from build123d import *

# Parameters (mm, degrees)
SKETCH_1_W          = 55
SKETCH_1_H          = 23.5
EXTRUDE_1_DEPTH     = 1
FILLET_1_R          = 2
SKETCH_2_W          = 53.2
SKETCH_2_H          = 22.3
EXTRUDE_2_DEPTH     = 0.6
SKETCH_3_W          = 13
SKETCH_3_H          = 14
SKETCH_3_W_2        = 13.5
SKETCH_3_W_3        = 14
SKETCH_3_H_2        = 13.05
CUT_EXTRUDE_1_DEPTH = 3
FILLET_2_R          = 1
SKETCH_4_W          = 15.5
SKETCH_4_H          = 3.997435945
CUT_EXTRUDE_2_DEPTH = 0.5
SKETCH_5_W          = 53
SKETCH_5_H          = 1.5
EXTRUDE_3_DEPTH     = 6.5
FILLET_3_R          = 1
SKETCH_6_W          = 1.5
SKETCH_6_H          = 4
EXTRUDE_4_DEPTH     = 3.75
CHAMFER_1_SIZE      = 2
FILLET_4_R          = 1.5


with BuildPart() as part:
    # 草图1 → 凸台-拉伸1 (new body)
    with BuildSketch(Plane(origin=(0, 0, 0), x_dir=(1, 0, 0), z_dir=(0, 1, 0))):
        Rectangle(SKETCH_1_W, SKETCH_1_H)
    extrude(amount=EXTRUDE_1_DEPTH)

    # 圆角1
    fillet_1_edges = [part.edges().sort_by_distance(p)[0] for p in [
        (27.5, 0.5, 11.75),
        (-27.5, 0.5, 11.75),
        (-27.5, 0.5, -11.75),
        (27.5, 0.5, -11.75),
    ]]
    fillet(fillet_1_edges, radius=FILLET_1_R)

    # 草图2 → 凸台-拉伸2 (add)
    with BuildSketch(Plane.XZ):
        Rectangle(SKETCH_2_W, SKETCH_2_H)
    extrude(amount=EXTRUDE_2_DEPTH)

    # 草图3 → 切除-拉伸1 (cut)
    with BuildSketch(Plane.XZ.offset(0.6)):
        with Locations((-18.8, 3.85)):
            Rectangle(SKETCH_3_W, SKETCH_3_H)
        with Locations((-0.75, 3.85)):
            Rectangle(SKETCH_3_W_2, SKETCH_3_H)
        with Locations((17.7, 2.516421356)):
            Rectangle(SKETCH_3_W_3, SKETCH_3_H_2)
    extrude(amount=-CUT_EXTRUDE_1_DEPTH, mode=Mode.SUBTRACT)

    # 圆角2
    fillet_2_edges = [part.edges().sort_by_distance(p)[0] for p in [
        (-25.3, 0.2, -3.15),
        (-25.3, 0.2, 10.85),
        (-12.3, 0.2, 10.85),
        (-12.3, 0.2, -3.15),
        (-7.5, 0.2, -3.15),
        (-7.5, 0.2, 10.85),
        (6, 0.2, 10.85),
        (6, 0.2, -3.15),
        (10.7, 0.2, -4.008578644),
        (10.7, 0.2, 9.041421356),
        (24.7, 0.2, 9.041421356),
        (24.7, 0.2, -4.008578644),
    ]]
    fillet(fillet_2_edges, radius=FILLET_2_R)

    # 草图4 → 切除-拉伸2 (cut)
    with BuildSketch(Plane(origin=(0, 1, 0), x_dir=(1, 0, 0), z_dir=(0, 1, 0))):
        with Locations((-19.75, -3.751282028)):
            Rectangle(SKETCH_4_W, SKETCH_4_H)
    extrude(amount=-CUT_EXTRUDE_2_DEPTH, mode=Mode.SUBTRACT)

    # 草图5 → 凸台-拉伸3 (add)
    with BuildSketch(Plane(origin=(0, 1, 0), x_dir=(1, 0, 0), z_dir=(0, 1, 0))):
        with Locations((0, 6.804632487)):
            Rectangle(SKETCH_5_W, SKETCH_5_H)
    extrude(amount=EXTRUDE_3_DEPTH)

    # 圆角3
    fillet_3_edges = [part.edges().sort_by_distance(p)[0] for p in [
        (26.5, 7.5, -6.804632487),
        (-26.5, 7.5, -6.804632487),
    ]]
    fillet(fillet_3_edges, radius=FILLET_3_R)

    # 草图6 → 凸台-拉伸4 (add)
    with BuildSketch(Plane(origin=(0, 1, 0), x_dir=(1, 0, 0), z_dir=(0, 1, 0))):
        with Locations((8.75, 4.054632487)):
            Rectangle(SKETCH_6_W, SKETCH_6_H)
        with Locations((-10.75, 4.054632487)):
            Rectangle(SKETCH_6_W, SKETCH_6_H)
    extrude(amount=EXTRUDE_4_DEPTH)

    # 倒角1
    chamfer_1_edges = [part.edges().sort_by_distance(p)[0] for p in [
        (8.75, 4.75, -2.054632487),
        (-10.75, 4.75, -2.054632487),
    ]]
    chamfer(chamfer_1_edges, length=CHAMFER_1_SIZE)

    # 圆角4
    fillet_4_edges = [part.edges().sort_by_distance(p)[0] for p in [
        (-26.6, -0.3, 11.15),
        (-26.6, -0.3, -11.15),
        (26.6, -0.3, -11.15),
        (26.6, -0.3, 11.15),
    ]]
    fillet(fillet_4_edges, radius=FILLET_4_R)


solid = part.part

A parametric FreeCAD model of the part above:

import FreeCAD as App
import Part
import Sketcher

V = App.Vector


def edges_at(feature, points):
    """Names of the edges that pass closest to the given points."""
    edges = feature.Shape.Edges
    near = lambda p: min(range(len(edges)), key=lambda i: edges[i].distToShape(Part.Vertex(*p))[0])
    return sorted({f"Edge{near(p) + 1}" for p in points})

doc = App.newDocument("Part")
body = doc.addObject("PartDesign::Body", "Body")

# Sketch on XZ plane
sketch1 = doc.addObject("Sketcher::SketchObject", "Sketch")
body.addObject(sketch1)
sketch1.AttachmentSupport = (doc.XZ_Plane, [""])
sketch1.MapMode = "FlatFace"
sketch1.addGeometry([
    Part.LineSegment(V(-28, -12, 0), V(-28, 12, 0)),
    Part.LineSegment(V(-28, 12, 0), V(28, 12, 0)),
    Part.LineSegment(V(28, 12, 0), V(28, -12, 0)),
    Part.LineSegment(V(28, -12, 0), V(-28, -12, 0)),
], False)
sketch1.addConstraint([
    Sketcher.Constraint("Coincident", 0, 2, 1, 1),
    Sketcher.Constraint("Coincident", 1, 2, 2, 1),
    Sketcher.Constraint("Coincident", 2, 2, 3, 1),
    Sketcher.Constraint("Coincident", 3, 2, 0, 1),
    Sketcher.Constraint("Vertical", 0),
    Sketcher.Constraint("Horizontal", 1),
    Sketcher.Constraint("Vertical", 2),
    Sketcher.Constraint("Horizontal", 3),
    Sketcher.Constraint("Symmetric", 0, 2, 2, 2, -1, 1),
    Sketcher.Constraint("DistanceX", 1, 1, 1, 2, 55.0),
    Sketcher.Constraint("DistanceY", 0, 1, 0, 2, 23.5),
])
pad1 = doc.addObject("PartDesign::Pad", "Pad")
body.addObject(pad1)
pad1.Profile = sketch1
pad1.Length = 1
pad1.Reversed = True
doc.recompute()

fillet = doc.addObject("PartDesign::Fillet", "Fillet")
body.addObject(fillet)
fillet.Base = (pad1, edges_at(pad1, [
    (27.5, 0.5, 11.75),
    (-27.5, 0.5, 11.75),
    (-27.5, 0.5, -11.75),
    (27.5, 0.5, -11.75),
]))
fillet.Radius = 2

# Sketch on XZ plane
sketch2 = doc.addObject("Sketcher::SketchObject", "Sketch001")
body.addObject(sketch2)
sketch2.AttachmentSupport = (doc.XZ_Plane, [""])
sketch2.MapMode = "FlatFace"
sketch2.addGeometry([
    Part.LineSegment(V(-27, 11, 0), V(-27, -11, 0)),
    Part.LineSegment(V(-27, -11, 0), V(27, -11, 0)),
    Part.LineSegment(V(27, -11, 0), V(27, 11, 0)),
    Part.LineSegment(V(27, 11, 0), V(-27, 11, 0)),
], False)
sketch2.addConstraint([
    Sketcher.Constraint("Coincident", 0, 2, 1, 1),
    Sketcher.Constraint("Coincident", 1, 2, 2, 1),
    Sketcher.Constraint("Coincident", 2, 2, 3, 1),
    Sketcher.Constraint("Coincident", 3, 2, 0, 1),
    Sketcher.Constraint("Vertical", 0),
    Sketcher.Constraint("Horizontal", 1),
    Sketcher.Constraint("Vertical", 2),
    Sketcher.Constraint("Horizontal", 3),
    Sketcher.Constraint("Symmetric", 0, 2, 2, 2, -1, 1),
    Sketcher.Constraint("DistanceX", 1, 1, 1, 2, 53.2),
    Sketcher.Constraint("DistanceY", 0, 2, 0, 1, 22.3),
])
pad2 = doc.addObject("PartDesign::Pad", "Pad001")
body.addObject(pad2)
pad2.Profile = sketch2
pad2.Length = 0.6

# Sketch on XZ plane
sketch3 = doc.addObject("Sketcher::SketchObject", "Sketch002")
body.addObject(sketch3)
sketch3.AttachmentSupport = (doc.XZ_Plane, [""])
sketch3.MapMode = "FlatFace"
sketch3.AttachmentOffset = App.Placement(V(0, 0, 0.6), App.Rotation())
sketch3.addGeometry([
    Part.LineSegment(V(-25, 11, 0), V(-25, -3, 0)),  # 0
    Part.LineSegment(V(-25, -3, 0), V(-12, -3, 0)),  # 1
    Part.LineSegment(V(-12, -3, 0), V(-12, 11, 0)),  # 2
    Part.LineSegment(V(-12, 11, 0), V(-25, 11, 0)),  # 3
    Part.LineSegment(V(-8, 11, 0), V(-8, -3, 0)),  # 4
    Part.LineSegment(V(-8, -3, 0), V(6, -3, 0)),  # 5
    Part.LineSegment(V(6, -3, 0), V(6, 11, 0)),  # 6
    Part.LineSegment(V(6, 11, 0), V(-8, 11, 0)),  # 7
    Part.LineSegment(V(11, 9, 0), V(11, -4, 0)),  # 8
    Part.LineSegment(V(11, -4, 0), V(25, -4, 0)),  # 9
    Part.LineSegment(V(25, -4, 0), V(25, 9, 0)),  # 10
    Part.LineSegment(V(25, 9, 0), V(11, 9, 0)),  # 11
], False)
sketch3.addConstraint([
    Sketcher.Constraint("Coincident", 0, 2, 1, 1),
    Sketcher.Constraint("Coincident", 1, 2, 2, 1),
    Sketcher.Constraint("Coincident", 2, 2, 3, 1),
    Sketcher.Constraint("Coincident", 3, 2, 0, 1),
    Sketcher.Constraint("Coincident", 4, 2, 5, 1),
    Sketcher.Constraint("Coincident", 5, 2, 6, 1),
    Sketcher.Constraint("Coincident", 6, 2, 7, 1),
    Sketcher.Constraint("Coincident", 7, 2, 4, 1),
    Sketcher.Constraint("Coincident", 8, 2, 9, 1),
    Sketcher.Constraint("Coincident", 9, 2, 10, 1),
    Sketcher.Constraint("Coincident", 10, 2, 11, 1),
    Sketcher.Constraint("Coincident", 11, 2, 8, 1),
    Sketcher.Constraint("Vertical", 0),
    Sketcher.Constraint("Horizontal", 1),
    Sketcher.Constraint("Vertical", 2),
    Sketcher.Constraint("Horizontal", 3),
    Sketcher.Constraint("Vertical", 4),
    Sketcher.Constraint("Horizontal", 5),
    Sketcher.Constraint("Vertical", 6),
    Sketcher.Constraint("Horizontal", 7),
    Sketcher.Constraint("Vertical", 8),
    Sketcher.Constraint("Horizontal", 9),
    Sketcher.Constraint("Vertical", 10),
    Sketcher.Constraint("Horizontal", 11),
    Sketcher.Constraint("Horizontal", 1, 2, 4, 2),
    Sketcher.Constraint("Horizontal", 3, 2, 6, 2),
    Sketcher.Constraint("Equal", 11, 0),
    Sketcher.Constraint("DistanceX", 1, 1, 1, 2, 13.0),
    Sketcher.Constraint("DistanceX", 9, 1, 9, 2, 14.0),
    Sketcher.Constraint("DistanceX", 5, 1, 5, 2, 13.5),
    Sketcher.Constraint("DistanceX", -1, 1, 5, 2, 6.0),
    Sketcher.Constraint("DistanceX", 1, 2, 8, 2, 23.0),
    Sketcher.Constraint("DistanceY", 8, 2, 8, 1, 13.05),
    Sketcher.Constraint("DistanceX", 0, 2, -1, 1, 25.3),
    Sketcher.Constraint("DistanceY", 0, 2, -1, 1, 3.15),
    Sketcher.Constraint("DistanceY", 8, 2, -1, 1, 4.008579),
])
pocket1 = doc.addObject("PartDesign::Pocket", "Pocket")
body.addObject(pocket1)
pocket1.Profile = sketch3
pocket1.Length = 3
doc.recompute()

fillet2 = doc.addObject("PartDesign::Fillet", "Fillet001")
body.addObject(fillet2)
fillet2.Base = (pocket1, edges_at(pocket1, [
    (-25.3, 0.2, -3.15),
    (-25.3, 0.2, 10.85),
    (-12.3, 0.2, 10.85),
    (-12.3, 0.2, -3.15),
    (-7.5, 0.2, -3.15),
    (-7.5, 0.2, 10.85),
    (6, 0.2, 10.85),
    (6, 0.2, -3.15),
    (10.7, 0.2, -4.009),
    (10.7, 0.2, 9.041),
    (24.7, 0.2, 9.041),
    (24.7, 0.2, -4.009),
]))
fillet2.Radius = 1

# Sketch on XZ plane
sketch4 = doc.addObject("Sketcher::SketchObject", "Sketch003")
body.addObject(sketch4)
sketch4.AttachmentSupport = (doc.XZ_Plane, [""])
sketch4.MapMode = "FlatFace"
sketch4.AttachmentOffset = App.Placement(V(0, 0, -1), App.Rotation())
sketch4.addGeometry([
    Part.LineSegment(V(-27.5, 1.8, 0), V(-27.5, 5.8, 0)),
    Part.LineSegment(V(-27.5, 5.8, 0), V(-12, 5.8, 0)),
    Part.LineSegment(V(-12, 5.8, 0), V(-12, 1.8, 0)),
    Part.LineSegment(V(-12, 1.8, 0), V(-27.5, 1.8, 0)),
], False)
sketch4.addConstraint([
    Sketcher.Constraint("Coincident", 0, 2, 1, 1),
    Sketcher.Constraint("Coincident", 1, 2, 2, 1),
    Sketcher.Constraint("Coincident", 2, 2, 3, 1),
    Sketcher.Constraint("Coincident", 3, 2, 0, 1),
    Sketcher.Constraint("Vertical", 0),
    Sketcher.Constraint("Horizontal", 1),
    Sketcher.Constraint("Vertical", 2),
    Sketcher.Constraint("Horizontal", 3),
    Sketcher.Constraint("DistanceX", 1, 1, 1, 2, 15.5),
    Sketcher.Constraint("DistanceX", 1, 2, -1, 1, 12.0),
    Sketcher.Constraint("DistanceY", -1, 1, 0, 2, 5.75),
    Sketcher.Constraint("DistanceY", 0, 1, 0, 2, 3.997436),
])
pocket2 = doc.addObject("PartDesign::Pocket", "Pocket001")
body.addObject(pocket2)
pocket2.Profile = sketch4
pocket2.Length = 0.5
pocket2.Reversed = True

# Sketch on XZ plane
sketch5 = doc.addObject("Sketcher::SketchObject", "Sketch004")
body.addObject(sketch5)
sketch5.AttachmentSupport = (doc.XZ_Plane, [""])
sketch5.MapMode = "FlatFace"
sketch5.AttachmentOffset = App.Placement(V(0, 0, -1), App.Rotation())
sketch5.addGeometry([
    Part.LineSegment(V(-26.5, -7.6, 0), V(-26.5, -6.1, 0)),
    Part.LineSegment(V(-26.5, -6.1, 0), V(26.5, -6.1, 0)),
    Part.LineSegment(V(26.5, -6.1, 0), V(26.5, -7.6, 0)),
    Part.LineSegment(V(26.5, -7.6, 0), V(-26.5, -7.6, 0)),
], False)
sketch5.addConstraint([
    Sketcher.Constraint("Coincident", 0, 2, 1, 1),
    Sketcher.Constraint("Coincident", 1, 2, 2, 1),
    Sketcher.Constraint("Coincident", 2, 2, 3, 1),
    Sketcher.Constraint("Coincident", 3, 2, 0, 1),
    Sketcher.Constraint("Vertical", 0),
    Sketcher.Constraint("Horizontal", 1),
    Sketcher.Constraint("Vertical", 2),
    Sketcher.Constraint("Horizontal", 3),
    Sketcher.Constraint("DistanceX", 1, 1, 1, 2, 53.0),
    Sketcher.Constraint("DistanceY", 0, 1, 0, 2, 1.5),
    Sketcher.Constraint("DistanceX", 0, 2, -1, 1, 26.5),
    Sketcher.Constraint("DistanceY", 0, 2, -1, 1, 6.054632),
])
pad3 = doc.addObject("PartDesign::Pad", "Pad002")
body.addObject(pad3)
pad3.Profile = sketch5
pad3.Length = 6.5
pad3.Reversed = True
doc.recompute()

fillet3 = doc.addObject("PartDesign::Fillet", "Fillet002")
body.addObject(fillet3)
fillet3.Base = (pad3, edges_at(pad3, [(26.5, 7.5, -6.805), (-26.5, 7.5, -6.805)]))
fillet3.Radius = 1

# Sketch on XZ plane
sketch6 = doc.addObject("Sketcher::SketchObject", "Sketch005")
body.addObject(sketch6)
sketch6.AttachmentSupport = (doc.XZ_Plane, [""])
sketch6.MapMode = "FlatFace"
sketch6.AttachmentOffset = App.Placement(V(0, 0, -1), App.Rotation())
sketch6.addGeometry([
    Part.LineSegment(V(8, -6.1, 0), V(8, -2.1, 0)),  # 0
    Part.LineSegment(V(8, -2.1, 0), V(9.5, -2.1, 0)),  # 1
    Part.LineSegment(V(9.5, -2.1, 0), V(9.5, -6.1, 0)),  # 2
    Part.LineSegment(V(9.5, -6.1, 0), V(8, -6.1, 0)),  # 3
    Part.LineSegment(V(-11.5, -6.1, 0), V(-11.5, -2.1, 0)),  # 4
    Part.LineSegment(V(-11.5, -2.1, 0), V(-10, -2.1, 0)),  # 5
    Part.LineSegment(V(-10, -2.1, 0), V(-10, -6.1, 0)),  # 6
    Part.LineSegment(V(-10, -6.1, 0), V(-11.5, -6.1, 0)),  # 7
], False)
sketch6.addConstraint([
    Sketcher.Constraint("Coincident", 0, 2, 1, 1),
    Sketcher.Constraint("Coincident", 1, 2, 2, 1),
    Sketcher.Constraint("Coincident", 2, 2, 3, 1),
    Sketcher.Constraint("Coincident", 3, 2, 0, 1),
    Sketcher.Constraint("Coincident", 4, 2, 5, 1),
    Sketcher.Constraint("Coincident", 5, 2, 6, 1),
    Sketcher.Constraint("Coincident", 6, 2, 7, 1),
    Sketcher.Constraint("Coincident", 7, 2, 4, 1),
    Sketcher.Constraint("Vertical", 0),
    Sketcher.Constraint("Horizontal", 1),
    Sketcher.Constraint("Vertical", 2),
    Sketcher.Constraint("Horizontal", 3),
    Sketcher.Constraint("Vertical", 4),
    Sketcher.Constraint("Horizontal", 5),
    Sketcher.Constraint("Vertical", 6),
    Sketcher.Constraint("Horizontal", 7),
    Sketcher.Constraint("Horizontal", 1, 2, 4, 2),
    Sketcher.Constraint("Horizontal", 3, 2, 6, 2),
    Sketcher.Constraint("Equal", 3, 5),
    Sketcher.Constraint("DistanceY", 0, 1, 0, 2, 4.0),
    Sketcher.Constraint("DistanceX", 1, 1, 1, 2, 1.5),
    Sketcher.Constraint("DistanceX", -1, 1, 0, 2, 8.0),
    Sketcher.Constraint("DistanceX", 5, 2, -1, 1, 10.0),
    Sketcher.Constraint("DistanceY", 0, 2, -1, 1, 2.054632),
])
pad4 = doc.addObject("PartDesign::Pad", "Pad003")
body.addObject(pad4)
pad4.Profile = sketch6
pad4.Length = 3.75
pad4.Reversed = True
doc.recompute()

chamfer = doc.addObject("PartDesign::Chamfer", "Chamfer")
body.addObject(chamfer)
chamfer.Base = (pad4, edges_at(pad4, [(8.75, 4.75, -2.055), (-10.75, 4.75, -2.055)]))
chamfer.Size = 2
doc.recompute()

fillet4 = doc.addObject("PartDesign::Fillet", "Fillet003")
body.addObject(fillet4)
fillet4.Base = (chamfer, edges_at(chamfer, [
    (-26.6, -0.3, 11.15),
    (-26.6, -0.3, -11.15),
    (26.6, -0.3, -11.15),
    (26.6, -0.3, 11.15),
]))
fillet4.Radius = 1.5

doc.recompute()
